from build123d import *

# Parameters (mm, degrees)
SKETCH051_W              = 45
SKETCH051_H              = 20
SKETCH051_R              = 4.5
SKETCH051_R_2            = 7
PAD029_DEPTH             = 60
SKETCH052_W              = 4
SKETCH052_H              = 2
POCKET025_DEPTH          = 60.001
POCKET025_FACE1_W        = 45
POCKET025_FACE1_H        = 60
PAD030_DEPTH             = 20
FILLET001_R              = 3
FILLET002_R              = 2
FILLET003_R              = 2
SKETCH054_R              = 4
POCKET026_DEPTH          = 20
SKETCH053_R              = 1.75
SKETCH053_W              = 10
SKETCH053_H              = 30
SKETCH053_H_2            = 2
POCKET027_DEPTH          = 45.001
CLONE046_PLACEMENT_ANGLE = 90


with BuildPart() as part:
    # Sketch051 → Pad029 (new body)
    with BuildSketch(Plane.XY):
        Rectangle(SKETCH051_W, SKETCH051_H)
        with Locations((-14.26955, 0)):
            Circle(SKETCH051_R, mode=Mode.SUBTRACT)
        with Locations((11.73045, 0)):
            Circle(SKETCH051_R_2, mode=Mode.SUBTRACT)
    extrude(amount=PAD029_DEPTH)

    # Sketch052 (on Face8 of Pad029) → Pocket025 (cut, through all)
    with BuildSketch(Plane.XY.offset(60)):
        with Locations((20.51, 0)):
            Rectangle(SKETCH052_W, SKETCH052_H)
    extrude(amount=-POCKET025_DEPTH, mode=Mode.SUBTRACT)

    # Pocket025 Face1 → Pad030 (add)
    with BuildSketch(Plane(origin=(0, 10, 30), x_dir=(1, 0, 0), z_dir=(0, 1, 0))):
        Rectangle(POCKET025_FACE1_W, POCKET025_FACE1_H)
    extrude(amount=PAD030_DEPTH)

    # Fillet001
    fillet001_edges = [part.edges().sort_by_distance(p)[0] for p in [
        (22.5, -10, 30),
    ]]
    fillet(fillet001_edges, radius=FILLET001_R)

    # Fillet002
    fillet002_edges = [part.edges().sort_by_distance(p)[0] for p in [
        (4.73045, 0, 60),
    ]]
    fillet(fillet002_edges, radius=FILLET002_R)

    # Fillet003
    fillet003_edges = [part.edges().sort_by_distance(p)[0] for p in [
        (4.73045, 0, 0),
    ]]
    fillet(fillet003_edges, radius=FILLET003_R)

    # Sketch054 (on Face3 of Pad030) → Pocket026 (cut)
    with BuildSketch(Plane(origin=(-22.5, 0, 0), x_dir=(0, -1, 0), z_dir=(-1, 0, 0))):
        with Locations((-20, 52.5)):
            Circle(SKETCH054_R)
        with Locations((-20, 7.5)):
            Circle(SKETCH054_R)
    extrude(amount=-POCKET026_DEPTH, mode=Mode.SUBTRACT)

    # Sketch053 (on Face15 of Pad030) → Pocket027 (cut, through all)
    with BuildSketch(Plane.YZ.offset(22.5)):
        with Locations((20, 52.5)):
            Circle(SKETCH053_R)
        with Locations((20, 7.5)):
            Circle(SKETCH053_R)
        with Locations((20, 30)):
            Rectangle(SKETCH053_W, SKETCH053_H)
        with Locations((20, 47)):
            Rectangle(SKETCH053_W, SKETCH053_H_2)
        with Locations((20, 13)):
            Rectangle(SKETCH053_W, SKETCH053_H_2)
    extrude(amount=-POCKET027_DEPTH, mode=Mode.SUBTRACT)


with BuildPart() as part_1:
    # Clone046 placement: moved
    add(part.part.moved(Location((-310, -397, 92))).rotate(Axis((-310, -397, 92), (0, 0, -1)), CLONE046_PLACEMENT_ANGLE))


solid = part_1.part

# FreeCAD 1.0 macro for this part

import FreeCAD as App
import Part
import Sketcher
from FreeCAD import Vector
Q = App.Units.Quantity


def edges_at(feature, points):
    """Names of the edges that pass closest to the given points."""
    edges = feature.Shape.Edges
    near = lambda p: min(range(len(edges)), key=lambda i: edges[i].distToShape(Part.Vertex(*p))[0])
    return sorted({f"Edge{near(p) + 1}" for p in points})

doc = App.newDocument("Part")
body = doc.addObject("PartDesign::Body", "Body")

sketch1 = body.newObject("Sketcher::SketchObject", "Sketch")
sketch1.AttachmentSupport = (doc.getObject("XY_Plane"), [""])
sketch1.MapMode = "FlatFace"
sketch1.addGeometry([
    Part.LineSegment(Vector(-22.5, 10, 0), Vector(-22.5, -10, 0)),
    Part.LineSegment(Vector(-22.5, -10, 0), Vector(22.5, -10, 0)),
    Part.LineSegment(Vector(22.5, -10, 0), Vector(22.5, 10, 0)),
    Part.LineSegment(Vector(22.5, 10, 0), Vector(-22.5, 10, 0)),
    Part.Circle(Vector(-14.3, 0, 0), Vector(0, 0, 1), 4.5),
    Part.Circle(Vector(11.7, 0, 0), Vector(0, 0, 1), 7),
], False)
sketch1.addConstraint([
    Sketcher.Constraint("Coincident", 0, 2, 1, 1),
    Sketcher.Constraint("Coincident", 1, 2, 2, 1),
    Sketcher.Constraint("Coincident", 2, 2, 3, 1),
    Sketcher.Constraint("Coincident", 3, 2, 0, 1),
    Sketcher.Constraint("Vertical", 0),
    Sketcher.Constraint("Horizontal", 1),
    Sketcher.Constraint("Vertical", 2),
    Sketcher.Constraint("Horizontal", 3),
    Sketcher.Constraint("Symmetric", 0, 2, 2, 2, -1, 1),
    Sketcher.Constraint("PointOnObject", 4, 3, -1),
    Sketcher.Constraint("PointOnObject", 5, 3, -1),
    Sketcher.Constraint("Diameter", 4, Q("9 mm")),
    Sketcher.Constraint("Diameter", 5, Q("14 mm")),
    Sketcher.Constraint("DistanceX", 1, 1, 1, 2, Q("45 mm")),
    Sketcher.Constraint("DistanceY", 0, 2, 0, 1, Q("20 mm")),
    Sketcher.Constraint("DistanceX", 4, 3, 5, 3, Q("26 mm")),
    Sketcher.Constraint("DistanceX", 4, 3, -1, 1, Q("14.26955 mm")),
])
pad1 = body.newObject("PartDesign::Pad", "Pad")
pad1.Profile = sketch1
pad1.Length = 60

sketch2 = body.newObject("Sketcher::SketchObject", "Sketch001")
sketch2.AttachmentSupport = (doc.getObject("XY_Plane"), [""])
sketch2.MapMode = "FlatFace"
sketch2.AttachmentOffset = App.Placement(Vector(0, 0, 60), App.Rotation())
sketch2.addGeometry([
    Part.LineSegment(Vector(18.5, 1, 0), Vector(18.5, -1, 0)),
    Part.LineSegment(Vector(18.5, -1, 0), Vector(22.5, -1, 0)),
    Part.LineSegment(Vector(22.5, -1, 0), Vector(22.5, 1, 0)),
    Part.LineSegment(Vector(22.5, 1, 0), Vector(18.5, 1, 0)),
], False)
sketch2.addConstraint([
    Sketcher.Constraint("Coincident", 0, 2, 1, 1),
    Sketcher.Constraint("Coincident", 1, 2, 2, 1),
    Sketcher.Constraint("Coincident", 2, 2, 3, 1),
    Sketcher.Constraint("Coincident", 3, 2, 0, 1),
    Sketcher.Constraint("Vertical", 0),
    Sketcher.Constraint("Horizontal", 1),
    Sketcher.Constraint("Vertical", 2),
    Sketcher.Constraint("Horizontal", 3),
    Sketcher.Constraint("DistanceX", 1, 1, 1, 2, Q("4 mm")),
    Sketcher.Constraint("DistanceY", 0, 2, 0, 1, Q("2 mm")),
    Sketcher.Constraint("DistanceY", 0, 2, -1, 1, Q("1 mm")),
    Sketcher.Constraint("DistanceX", -1, 1, 0, 2, Q("18.51 mm")),
])
pocket1 = body.newObject("PartDesign::Pocket", "Pocket")
pocket1.Profile = sketch2
pocket1.Type = "ThroughAll"

sketch3 = body.newObject("Sketcher::SketchObject", "Sketch002")
sketch3.AttachmentSupport = (doc.getObject("XZ_Plane"), [""])
sketch3.MapMode = "FlatFace"
sketch3.AttachmentOffset = App.Placement(Vector(0, 0, -10), App.Rotation())
sketch3.addGeometry([
    Part.LineSegment(Vector(-22, 0, 0), Vector(-22, 60, 0)),
    Part.LineSegment(Vector(-22, 60, 0), Vector(22, 60, 0)),
    Part.LineSegment(Vector(22, 60, 0), Vector(22, 0, 0)),
    Part.LineSegment(Vector(22, 0, 0), Vector(-22, 0, 0)),
], False)
sketch3.addConstraint([
    Sketcher.Constraint("Coincident", 0, 2, 1, 1),
    Sketcher.Constraint("Coincident", 1, 2, 2, 1),
    Sketcher.Constraint("Coincident", 2, 2, 3, 1),
    Sketcher.Constraint("Coincident", 3, 2, 0, 1),
    Sketcher.Constraint("Vertical", 0),
    Sketcher.Constraint("Horizontal", 1),
    Sketcher.Constraint("Vertical", 2),
    Sketcher.Constraint("Horizontal", 3),
    Sketcher.Constraint("Symmetric", 2, 2, 3, 2, -1, 1),
    Sketcher.Constraint("DistanceX", 1, 1, 1, 2, Q("45 mm")),
    Sketcher.Constraint("DistanceY", 0, 1, 0, 2, Q("60 mm")),
])
pad2 = body.newObject("PartDesign::Pad", "Pad001")
pad2.Profile = sketch3
pad2.Length = 20
pad2.Reversed = True
doc.recompute()

fillet = body.newObject("PartDesign::Fillet", "Fillet")
fillet.Base = (pad2, edges_at(pad2, [(22.5, -10, 30)]))
fillet.Radius = 3
doc.recompute()

fillet2 = body.newObject("PartDesign::Fillet", "Fillet001")
fillet2.Base = (fillet, edges_at(fillet, [(4.73, 0, 60)]))
fillet2.Radius = 2
doc.recompute()

fillet3 = body.newObject("PartDesign::Fillet", "Fillet002")
fillet3.Base = (fillet2, edges_at(fillet2, [(4.73, 0, 0)]))
fillet3.Radius = 2

sketch4 = body.newObject("Sketcher::SketchObject", "Sketch003")
sketch4.AttachmentSupport = (doc.getObject("YZ_Plane"), [""])
sketch4.MapMode = "FlatFace"
sketch4.AttachmentOffset = App.Placement(Vector(0, 0, -22.5), App.Rotation())
sketch4.addGeometry([
    Part.Circle(Vector(20, 52.5, 0), Vector(0, 0, 1), 4),
    Part.Circle(Vector(20, 7.5, 0), Vector(0, 0, 1), 4),
], False)
sketch4.addConstraint([
    Sketcher.Constraint("Equal", 0, 1),
    Sketcher.Constraint("Vertical", 0, 3, 1, 3),
    Sketcher.Constraint("Diameter", 0, Q("8 mm")),
    Sketcher.Constraint("DistanceX", -1, 1, 0, 3, Q("20 mm")),
    Sketcher.Constraint("DistanceY", 1, 3, 0, 3, Q("45 mm")),
    Sketcher.Constraint("DistanceY", -1, 1, 0, 3, Q("52.5 mm")),
])
pocket2 = body.newObject("PartDesign::Pocket", "Pocket001")
pocket2.Profile = sketch4
pocket2.Length = 20
pocket2.Reversed = True

sketch5 = body.newObject("Sketcher::SketchObject", "Sketch004")
sketch5.AttachmentSupport = (doc.getObject("YZ_Plane"), [""])
sketch5.MapMode = "FlatFace"
sketch5.AttachmentOffset = App.Placement(Vector(0, 0, 22.5), App.Rotation())
sketch5.addGeometry([
    Part.Circle(Vector(20, 52.5, 0), Vector(0, 0, 1), 1.8),
    Part.Circle(Vector(20, 7.5, 0), Vector(0, 0, 1), 1.8),
    Part.LineSegment(Vector(15, 45, 0), Vector(15, 15, 0)),
    Part.LineSegment(Vector(15, 15, 0), Vector(25, 15, 0)),
    Part.LineSegment(Vector(25, 15, 0), Vector(25, 45, 0)),
    Part.LineSegment(Vector(25, 45, 0), Vector(15, 45, 0)),
    Part.LineSegment(Vector(15, 48, 0), Vector(15, 46, 0)),
    Part.LineSegment(Vector(15, 46, 0), Vector(25, 46, 0)),
    Part.LineSegment(Vector(25, 46, 0), Vector(25, 48, 0)),
    Part.LineSegment(Vector(25, 48, 0), Vector(15, 48, 0)),
    Part.LineSegment(Vector(15, 14, 0), Vector(15, 12, 0)),
    Part.LineSegment(Vector(15, 12, 0), Vector(25, 12, 0)),
    Part.LineSegment(Vector(25, 12, 0), Vector(25, 14, 0)),
    Part.LineSegment(Vector(25, 14, 0), Vector(15, 14, 0)),
], False)
sketch5.addConstraint([
    Sketcher.Constraint("Coincident", 2, 2, 3, 1),
    Sketcher.Constraint("Coincident", 3, 2, 4, 1),
    Sketcher.Constraint("Coincident", 4, 2, 5, 1),
    Sketcher.Constraint("Coincident", 5, 2, 2, 1),
    Sketcher.Constraint("Coincident", 6, 2, 7, 1),
    Sketcher.Constraint("Coincident", 7, 2, 8, 1),
    Sketcher.Constraint("Coincident", 8, 2, 9, 1),
    Sketcher.Constraint("Coincident", 9, 2, 6, 1),
    Sketcher.Constraint("Coincident", 10, 2, 11, 1),
    Sketcher.Constraint("Coincident", 11, 2, 12, 1),
    Sketcher.Constraint("Coincident", 12, 2, 13, 1),
    Sketcher.Constraint("Coincident", 13, 2, 10, 1),
    Sketcher.Constraint("Vertical", 2),
    Sketcher.Constraint("Horizontal", 3),
    Sketcher.Constraint("Vertical", 4),
    Sketcher.Constraint("Horizontal", 5),
    Sketcher.Constraint("Vertical", 6),
    Sketcher.Constraint("Horizontal", 7),
    Sketcher.Constraint("Vertical", 8),
    Sketcher.Constraint("Horizontal", 9),
    Sketcher.Constraint("Vertical", 10),
    Sketcher.Constraint("Horizontal", 11),
    Sketcher.Constraint("Vertical", 12),
    Sketcher.Constraint("Horizontal", 13),
    Sketcher.Constraint("Equal", 0, 1),
    Sketcher.Constraint("Vertical", 0, 3, 1, 3),
    Sketcher.Constraint("Vertical", 5, 2, 6, 2),
    Sketcher.Constraint("Vertical", 4, 2, 7, 2),
    Sketcher.Constraint("Vertical", 9, 2, 10, 2),
    Sketcher.Constraint("Vertical", 8, 2, 11, 2),
    Sketcher.Constraint("Equal", 8, 10),
    Sketcher.Constraint("Diameter", 0, Q("3.5 mm")),
    Sketcher.Constraint("DistanceX", 3, 1, 3, 2, Q("10 mm")),
    Sketcher.Constraint("DistanceY", 2, 2, 2, 1, Q("30 mm")),
    Sketcher.Constraint("DistanceY", 6, 2, 6, 1, Q("2 mm")),
    Sketcher.Constraint("DistanceX", -1, 1, 0, 3, Q("20 mm")),
    Sketcher.Constraint("DistanceX", -1, 1, 2, 2, Q("15 mm")),
    Sketcher.Constraint("DistanceY", -1, 1, 2, 2, Q("15 mm")),
    Sketcher.Constraint("DistanceY", -1, 1, 6, 2, Q("46 mm")),
    Sketcher.Constraint("DistanceY", -1, 1, 10, 2, Q("12 mm")),
    Sketcher.Constraint("DistanceY", 1, 3, 0, 3, Q("45 mm")),
    Sketcher.Constraint("DistanceY", -1, 1, 0, 3, Q("52.5 mm")),
])
pocket3 = body.newObject("PartDesign::Pocket", "Pocket002")
pocket3.Profile = sketch5
pocket3.Type = "ThroughAll"
body2 = doc.addObject("PartDesign::Body", "Body001")
doc.recompute()

body.Placement = App.Placement(Vector(-310, -397, 92), App.Rotation(Vector(0, 0, -1), 90))
boolean = body2.newObject("PartDesign::Boolean", "Boolean")
boolean.Type = "Fuse"
boolean.addObjects([body])

doc.recompute()
